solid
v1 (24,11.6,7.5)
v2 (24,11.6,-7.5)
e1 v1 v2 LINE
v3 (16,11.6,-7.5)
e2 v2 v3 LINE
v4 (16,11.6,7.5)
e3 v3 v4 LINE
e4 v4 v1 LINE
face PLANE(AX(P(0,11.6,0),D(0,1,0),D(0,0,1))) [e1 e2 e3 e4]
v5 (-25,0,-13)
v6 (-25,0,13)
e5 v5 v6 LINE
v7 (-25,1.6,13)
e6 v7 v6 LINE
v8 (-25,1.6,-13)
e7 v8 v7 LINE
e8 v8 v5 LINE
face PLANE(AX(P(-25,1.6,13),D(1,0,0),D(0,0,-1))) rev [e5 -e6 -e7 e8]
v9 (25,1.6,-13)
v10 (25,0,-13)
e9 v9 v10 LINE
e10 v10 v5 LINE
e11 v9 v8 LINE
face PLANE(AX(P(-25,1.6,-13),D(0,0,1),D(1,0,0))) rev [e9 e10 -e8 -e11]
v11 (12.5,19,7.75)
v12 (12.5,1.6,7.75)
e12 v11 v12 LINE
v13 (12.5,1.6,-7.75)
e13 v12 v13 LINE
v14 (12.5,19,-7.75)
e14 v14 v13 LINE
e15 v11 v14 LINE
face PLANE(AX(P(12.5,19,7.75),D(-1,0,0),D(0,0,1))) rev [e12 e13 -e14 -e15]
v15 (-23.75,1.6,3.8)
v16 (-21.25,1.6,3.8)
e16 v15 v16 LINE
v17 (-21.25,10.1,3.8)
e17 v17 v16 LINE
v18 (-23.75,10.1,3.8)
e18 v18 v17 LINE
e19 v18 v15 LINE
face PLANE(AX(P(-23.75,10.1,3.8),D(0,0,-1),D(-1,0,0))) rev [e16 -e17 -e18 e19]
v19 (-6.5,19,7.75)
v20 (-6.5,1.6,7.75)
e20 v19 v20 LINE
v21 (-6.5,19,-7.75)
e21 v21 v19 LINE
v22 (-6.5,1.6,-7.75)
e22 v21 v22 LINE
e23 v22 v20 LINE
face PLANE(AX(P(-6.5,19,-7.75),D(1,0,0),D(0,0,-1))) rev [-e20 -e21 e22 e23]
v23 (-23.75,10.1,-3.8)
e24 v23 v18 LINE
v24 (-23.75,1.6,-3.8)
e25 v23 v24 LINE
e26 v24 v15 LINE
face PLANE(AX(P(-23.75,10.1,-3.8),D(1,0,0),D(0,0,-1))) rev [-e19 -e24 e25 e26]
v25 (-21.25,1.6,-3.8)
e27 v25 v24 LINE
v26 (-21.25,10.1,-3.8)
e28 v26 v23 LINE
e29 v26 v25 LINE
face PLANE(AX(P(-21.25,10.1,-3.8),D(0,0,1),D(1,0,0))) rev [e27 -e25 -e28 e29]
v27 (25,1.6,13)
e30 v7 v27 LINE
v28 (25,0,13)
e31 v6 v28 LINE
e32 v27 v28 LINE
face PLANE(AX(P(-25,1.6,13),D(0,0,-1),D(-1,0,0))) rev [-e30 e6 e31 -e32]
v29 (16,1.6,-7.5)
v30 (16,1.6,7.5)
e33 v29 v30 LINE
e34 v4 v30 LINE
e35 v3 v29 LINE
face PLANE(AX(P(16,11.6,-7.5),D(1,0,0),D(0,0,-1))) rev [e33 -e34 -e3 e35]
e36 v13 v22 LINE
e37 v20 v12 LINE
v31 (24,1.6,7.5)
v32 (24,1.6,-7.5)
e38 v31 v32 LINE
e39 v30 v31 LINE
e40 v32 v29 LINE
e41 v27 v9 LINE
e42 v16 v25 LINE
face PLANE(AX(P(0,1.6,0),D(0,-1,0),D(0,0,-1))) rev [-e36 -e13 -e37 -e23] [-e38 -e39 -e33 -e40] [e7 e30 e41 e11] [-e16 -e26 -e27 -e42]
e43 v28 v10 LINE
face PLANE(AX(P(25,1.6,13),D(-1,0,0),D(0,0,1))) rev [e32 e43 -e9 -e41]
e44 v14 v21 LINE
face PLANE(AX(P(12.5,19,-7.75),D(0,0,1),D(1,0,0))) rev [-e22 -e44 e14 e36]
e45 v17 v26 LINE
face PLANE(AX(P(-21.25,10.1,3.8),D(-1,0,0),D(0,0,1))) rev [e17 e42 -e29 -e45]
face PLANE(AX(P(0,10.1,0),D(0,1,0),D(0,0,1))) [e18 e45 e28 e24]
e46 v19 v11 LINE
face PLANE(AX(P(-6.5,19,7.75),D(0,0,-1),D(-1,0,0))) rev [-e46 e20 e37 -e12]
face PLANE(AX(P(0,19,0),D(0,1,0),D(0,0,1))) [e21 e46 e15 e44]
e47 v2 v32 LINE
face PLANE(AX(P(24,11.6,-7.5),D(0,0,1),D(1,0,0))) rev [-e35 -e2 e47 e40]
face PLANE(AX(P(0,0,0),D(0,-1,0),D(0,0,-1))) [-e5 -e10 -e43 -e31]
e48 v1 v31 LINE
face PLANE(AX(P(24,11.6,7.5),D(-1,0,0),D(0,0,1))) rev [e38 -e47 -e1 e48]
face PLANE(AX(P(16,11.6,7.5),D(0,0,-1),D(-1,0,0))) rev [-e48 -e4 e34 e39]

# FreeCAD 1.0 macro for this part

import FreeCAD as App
import Part
import Sketcher
from FreeCAD import Vector


def add_polygon(sketch, points):
    """Adds a closed chain of lines whose ends are joined by coincident constraints."""
    first, n = sketch.GeometryCount, len(points)
    for a, b in zip(points, points[1:] + points[:1]):
        sketch.addGeometry(Part.LineSegment(App.Vector(*a, 0), App.Vector(*b, 0)), False)
    for i in range(n):
        sketch.addConstraint(Sketcher.Constraint("Coincident", first + i, 2, first + (i + 1) % n, 1))

doc = App.newDocument("Part")
body = doc.addObject("PartDesign::Body", "Body")

# Sketch on XZ plane
sketch1 = body.newObject("Sketcher::SketchObject", "Sketch")
sketch1.AttachmentSupport = (doc.getObject("XZ_Plane"), [""])
sketch1.MapMode = "FlatFace"
add_polygon(sketch1, [(-25, -13), (-25, 13), (25, 13), (25, -13)])  # lines 0-3
sketch1.addConstraint([
    Sketcher.Constraint("Vertical", 0),
    Sketcher.Constraint("Horizontal", 1),
    Sketcher.Constraint("Vertical", 2),
    Sketcher.Constraint("Horizontal", 3),
    Sketcher.Constraint("Symmetric", 0, 2, 2, 2, -1, 1),
    Sketcher.Constraint("DistanceX", 1, 1, 1, 2, 50.0),
    Sketcher.Constraint("DistanceY", 0, 1, 0, 2, 26.0),
])
pad1 = body.newObject("PartDesign::Pad", "Pad")
pad1.Profile = sketch1
pad1.Length = 1.6
pad1.Reversed = True

# Sketch on XZ plane
sketch2 = body.newObject("Sketcher::SketchObject", "Sketch001")
sketch2.AttachmentSupport = (doc.getObject("XZ_Plane"), [""])
sketch2.MapMode = "FlatFace"
sketch2.AttachmentOffset = App.Placement(Vector(0, 0, -1.6), App.Rotation())
add_polygon(sketch2, [(-6.5, -7.75), (-6.5, 7.75), (12.5, 7.75), (12.5, -7.75)])  # lines 0-3
sketch2.addConstraint([
    Sketcher.Constraint("Vertical", 0),
    Sketcher.Constraint("Horizontal", 1),
    Sketcher.Constraint("Vertical", 2),
    Sketcher.Constraint("Horizontal", 3),
    Sketcher.Constraint("DistanceX", 1, 1, 1, 2, 19.0),
    Sketcher.Constraint("DistanceY", 0, 1, 0, 2, 15.5),
    Sketcher.Constraint("DistanceX", 0, 2, -1, 1, 6.5),
    Sketcher.Constraint("DistanceY", -1, 1, 0, 2, 7.75),
])
pad2 = body.newObject("PartDesign::Pad", "Pad001")
pad2.Profile = sketch2
pad2.Length = 17.4
pad2.Reversed = True

# Sketch on XZ plane
sketch3 = body.newObject("Sketcher::SketchObject", "Sketch002")
sketch3.AttachmentSupport = (doc.getObject("XZ_Plane"), [""])
sketch3.MapMode = "FlatFace"
sketch3.AttachmentOffset = App.Placement(Vector(0, 0, -1.6), App.Rotation())
add_polygon(sketch3, [(16, -7.5), (16, 7.5), (24, 7.5), (24, -7.5)])  # lines 0-3
sketch3.addConstraint([
    Sketcher.Constraint("Vertical", 0),
    Sketcher.Constraint("Horizontal", 1),
    Sketcher.Constraint("Vertical", 2),
    Sketcher.Constraint("Horizontal", 3),
    Sketcher.Constraint("DistanceX", 1, 1, 1, 2, 8.0),
    Sketcher.Constraint("DistanceY", 0, 1, 0, 2, 15.0),
    Sketcher.Constraint("DistanceX", -1, 1, 0, 2, 16.0),
    Sketcher.Constraint("DistanceY", -1, 1, 0, 2, 7.5),
])
pad3 = body.newObject("PartDesign::Pad", "Pad002")
pad3.Profile = sketch3
pad3.Length = 10
pad3.Reversed = True

# Sketch on XZ plane
sketch4 = body.newObject("Sketcher::SketchObject", "Sketch003")
sketch4.AttachmentSupport = (doc.getObject("XZ_Plane"), [""])
sketch4.MapMode = "FlatFace"
sketch4.AttachmentOffset = App.Placement(Vector(0, 0, -1.6), App.Rotation())
add_polygon(sketch4, [(-23.75, -3.8), (-23.75, 3.8), (-21.25, 3.8), (-21.25, -3.8)])  # lines 0-3
sketch4.addConstraint([
    Sketcher.Constraint("Vertical", 0),
    Sketcher.Constraint("Horizontal", 1),
    Sketcher.Constraint("Vertical", 2),
    Sketcher.Constraint("Horizontal", 3),
    Sketcher.Constraint("DistanceX", 1, 1, 1, 2, 2.5),
    Sketcher.Constraint("DistanceY", 0, 1, 0, 2, 7.6),
    Sketcher.Constraint("DistanceY", -1, 1, 0, 2, 3.8),
    Sketcher.Constraint("DistanceX", 0, 2, -1, 1, 23.75),
])
pad4 = body.newObject("PartDesign::Pad", "Pad003")
pad4.Profile = sketch4
pad4.Length = 8.5
pad4.Reversed = True

doc.recompute()
